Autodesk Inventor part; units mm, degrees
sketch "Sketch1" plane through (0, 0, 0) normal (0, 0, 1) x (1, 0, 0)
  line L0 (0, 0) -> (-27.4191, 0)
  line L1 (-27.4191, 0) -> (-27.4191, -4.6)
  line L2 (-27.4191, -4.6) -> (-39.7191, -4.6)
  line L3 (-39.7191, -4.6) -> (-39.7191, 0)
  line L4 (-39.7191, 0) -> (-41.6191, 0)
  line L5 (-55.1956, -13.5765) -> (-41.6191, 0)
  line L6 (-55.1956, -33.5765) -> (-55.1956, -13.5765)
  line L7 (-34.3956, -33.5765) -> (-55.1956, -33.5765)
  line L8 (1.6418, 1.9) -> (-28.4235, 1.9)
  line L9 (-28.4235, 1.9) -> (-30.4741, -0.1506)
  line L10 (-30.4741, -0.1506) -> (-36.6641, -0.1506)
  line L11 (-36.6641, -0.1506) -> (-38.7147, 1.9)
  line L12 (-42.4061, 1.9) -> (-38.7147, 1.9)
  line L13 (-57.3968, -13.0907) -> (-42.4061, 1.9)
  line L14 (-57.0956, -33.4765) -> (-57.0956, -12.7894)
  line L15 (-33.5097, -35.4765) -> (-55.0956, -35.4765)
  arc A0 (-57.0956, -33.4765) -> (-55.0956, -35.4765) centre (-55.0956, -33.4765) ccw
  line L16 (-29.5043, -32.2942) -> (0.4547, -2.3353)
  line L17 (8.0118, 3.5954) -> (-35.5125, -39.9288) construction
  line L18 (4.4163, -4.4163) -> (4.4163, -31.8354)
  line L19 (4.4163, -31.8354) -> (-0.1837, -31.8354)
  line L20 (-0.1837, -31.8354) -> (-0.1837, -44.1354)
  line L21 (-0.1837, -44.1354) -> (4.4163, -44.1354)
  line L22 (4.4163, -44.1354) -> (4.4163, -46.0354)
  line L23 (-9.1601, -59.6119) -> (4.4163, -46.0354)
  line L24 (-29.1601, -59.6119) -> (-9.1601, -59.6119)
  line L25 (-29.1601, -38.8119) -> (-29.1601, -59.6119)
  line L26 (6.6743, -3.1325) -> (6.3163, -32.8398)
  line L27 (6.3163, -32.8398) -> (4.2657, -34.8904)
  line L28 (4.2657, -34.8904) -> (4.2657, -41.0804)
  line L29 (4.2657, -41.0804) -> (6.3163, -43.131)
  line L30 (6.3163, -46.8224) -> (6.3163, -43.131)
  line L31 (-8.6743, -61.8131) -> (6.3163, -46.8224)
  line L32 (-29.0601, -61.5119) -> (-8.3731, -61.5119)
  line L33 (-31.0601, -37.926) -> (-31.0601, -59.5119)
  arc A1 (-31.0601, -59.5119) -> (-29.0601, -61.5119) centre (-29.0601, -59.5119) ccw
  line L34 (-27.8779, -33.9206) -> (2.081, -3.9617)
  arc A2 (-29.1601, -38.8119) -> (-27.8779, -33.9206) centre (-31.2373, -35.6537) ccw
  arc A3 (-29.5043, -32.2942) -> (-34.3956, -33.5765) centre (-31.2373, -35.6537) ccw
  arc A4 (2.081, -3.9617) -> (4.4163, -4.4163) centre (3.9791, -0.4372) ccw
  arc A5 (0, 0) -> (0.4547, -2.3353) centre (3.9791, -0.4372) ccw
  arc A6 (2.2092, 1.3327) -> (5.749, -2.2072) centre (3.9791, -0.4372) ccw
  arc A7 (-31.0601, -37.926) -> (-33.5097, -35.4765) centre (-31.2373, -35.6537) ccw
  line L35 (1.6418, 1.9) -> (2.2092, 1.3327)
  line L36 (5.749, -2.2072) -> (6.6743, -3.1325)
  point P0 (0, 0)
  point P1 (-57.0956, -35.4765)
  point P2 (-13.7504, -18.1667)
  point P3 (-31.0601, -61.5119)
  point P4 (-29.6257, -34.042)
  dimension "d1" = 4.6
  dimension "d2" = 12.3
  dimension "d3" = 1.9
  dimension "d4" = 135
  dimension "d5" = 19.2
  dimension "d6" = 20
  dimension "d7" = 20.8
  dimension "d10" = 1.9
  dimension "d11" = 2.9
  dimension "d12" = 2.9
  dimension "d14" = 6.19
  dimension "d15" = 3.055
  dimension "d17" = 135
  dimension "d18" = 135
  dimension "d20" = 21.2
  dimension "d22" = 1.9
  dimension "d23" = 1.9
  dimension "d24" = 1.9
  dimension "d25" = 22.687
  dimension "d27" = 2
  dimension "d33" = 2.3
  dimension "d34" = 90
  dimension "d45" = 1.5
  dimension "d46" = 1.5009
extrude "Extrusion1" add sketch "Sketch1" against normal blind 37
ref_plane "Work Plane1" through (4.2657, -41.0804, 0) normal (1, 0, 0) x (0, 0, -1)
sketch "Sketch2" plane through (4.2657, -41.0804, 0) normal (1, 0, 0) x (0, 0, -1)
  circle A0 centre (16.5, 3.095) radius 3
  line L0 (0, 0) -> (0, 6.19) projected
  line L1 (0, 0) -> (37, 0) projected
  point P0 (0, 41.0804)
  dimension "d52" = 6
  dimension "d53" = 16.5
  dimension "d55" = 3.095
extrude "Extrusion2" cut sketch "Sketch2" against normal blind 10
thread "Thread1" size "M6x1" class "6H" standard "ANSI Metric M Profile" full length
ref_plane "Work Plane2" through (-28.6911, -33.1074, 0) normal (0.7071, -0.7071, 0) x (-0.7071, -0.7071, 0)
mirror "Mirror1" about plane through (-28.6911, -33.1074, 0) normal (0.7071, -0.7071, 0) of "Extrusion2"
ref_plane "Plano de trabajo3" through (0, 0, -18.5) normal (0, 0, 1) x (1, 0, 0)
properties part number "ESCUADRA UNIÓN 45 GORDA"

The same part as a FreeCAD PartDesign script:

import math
import FreeCAD as App
import Part
import Sketcher
from FreeCAD import Vector
Q = App.Units.Quantity

doc = App.newDocument("Part")
params = doc.addObject("Spreadsheet::Sheet", "Params")
for row, (alias, value) in enumerate([
    ("sketch1_radius", "2 mm"),
    ("sketch1_width", "20 mm"),
    ("sketch1_width2", "4.6 mm"),
    ("sketch1_width3", "20.8 mm"),
    ("sketch1_width4", "1.9 mm"),
    ("pad1_length", "37 mm"),
    ("sketch2_diameter", "6 mm"),
    ("pocket1_length", "10 mm"),
], start=1):
    params.set(f"A{row}", alias)
    params.set(f"B{row}", "=" + value)
    params.setAlias(f"B{row}", alias)

body = doc.addObject("PartDesign::Body", "Body")

# Sketch on XY plane
sketch1 = body.newObject("Sketcher::SketchObject", "Sketch")
sketch1.AttachmentSupport = (doc.getObject("XY_Plane"), [""])
sketch1.MapMode = "FlatFace"
sketch1.addGeometry([
    Part.LineSegment(Vector(2.2, 1.3, 0), Vector(1.6, 1.9, 0)),  # 0
    Part.LineSegment(Vector(1.6, 1.9, 0), Vector(-28.4, 1.9, 0)),  # 1
    Part.LineSegment(Vector(-28.4, 1.9, 0), Vector(-30.5, -0.2, 0)),  # 2
    Part.LineSegment(Vector(-30.5, -0.2, 0), Vector(-36.7, -0.2, 0)),  # 3
    Part.LineSegment(Vector(-36.7, -0.2, 0), Vector(-38.7, 1.9, 0)),  # 4
    Part.LineSegment(Vector(-38.7, 1.9, 0), Vector(-42.4, 1.9, 0)),  # 5
    Part.LineSegment(Vector(-42.4, 1.9, 0), Vector(-57.1, -12.8, 0)),  # 6
    Part.LineSegment(Vector(-57.1, -12.8, 0), Vector(-57.1, -33.5, 0)),  # 7
    Part.ArcOfCircle(Part.Circle(Vector(-55.1, -33.5, 0), Vector(0, 0, 1), 2), math.radians(180), math.radians(270)),  # 8
    Part.LineSegment(Vector(-55.1, -35.5, 0), Vector(-33.5, -35.5, 0)),  # 9
    Part.ArcOfCircle(Part.Circle(Vector(-31.2, -35.7, 0), Vector(0, 0, 1), 2.3), math.radians(-86), math.radians(176)),  # 10
    Part.LineSegment(Vector(-31.1, -37.9, 0), Vector(-31.1, -59.5, 0)),  # 11
    Part.ArcOfCircle(Part.Circle(Vector(-29.1, -59.5, 0), Vector(0, 0, 1), 2), math.radians(180), math.radians(270)),  # 12
    Part.LineSegment(Vector(-29.1, -61.5, 0), Vector(-8.4, -61.5, 0)),  # 13
    Part.LineSegment(Vector(-8.4, -61.5, 0), Vector(6.3, -46.8, 0)),  # 14
    Part.LineSegment(Vector(6.3, -46.8, 0), Vector(6.3, -43.1, 0)),  # 15
    Part.LineSegment(Vector(6.3, -43.1, 0), Vector(4.3, -41.1, 0)),  # 16
    Part.LineSegment(Vector(4.3, -41.1, 0), Vector(4.3, -34.9, 0)),  # 17
    Part.LineSegment(Vector(4.3, -34.9, 0), Vector(6.3, -32.8, 0)),  # 18
    Part.LineSegment(Vector(6.3, -32.8, 0), Vector(6.7, -3.1, 0)),  # 19
    Part.LineSegment(Vector(6.7, -3.1, 0), Vector(5.7, -2.2, 0)),  # 20
    Part.ArcOfCircle(Part.Circle(Vector(4, -0.4, 0), Vector(0, 0, 1), 2.5), math.radians(135), math.radians(315)),  # 21
    Part.ArcOfCircle(Part.Circle(Vector(4, -0.4, 0), Vector(0, 0, 1), 4), math.radians(-118), math.radians(-84)),  # 22
    Part.LineSegment(Vector(4.4, -4.4, 0), Vector(4.4, -31.8, 0)),  # 23
    Part.LineSegment(Vector(4.4, -31.8, 0), Vector(-0.2, -31.8, 0)),  # 24
    Part.LineSegment(Vector(-0.2, -31.8, 0), Vector(-0.2, -44.1, 0)),  # 25
    Part.LineSegment(Vector(-0.2, -44.1, 0), Vector(4.4, -44.1, 0)),  # 26
    Part.LineSegment(Vector(4.4, -44.1, 0), Vector(4.4, -46, 0)),  # 27
    Part.LineSegment(Vector(4.4, -46, 0), Vector(-9.2, -59.6, 0)),  # 28
    Part.LineSegment(Vector(-9.2, -59.6, 0), Vector(-29.2, -59.6, 0)),  # 29
    Part.LineSegment(Vector(-29.2, -59.6, 0), Vector(-29.2, -38.8, 0)),  # 30
    Part.ArcOfCircle(Part.Circle(Vector(-31.2, -35.7, 0), Vector(0, 0, 1), 3.8), math.radians(-57), math.radians(27)),  # 31
    Part.LineSegment(Vector(-27.9, -33.9, 0), Vector(2.1, -4, 0)),  # 32
    Part.LineSegment(Vector(-27.4, 0, 0), Vector(0, 0, 0)),  # 33
    Part.ArcOfCircle(Part.Circle(Vector(4, -0.4, 0), Vector(0, 0, 1), 4), math.radians(174), math.radians(208)),  # 34
    Part.LineSegment(Vector(0.5, -2.3, 0), Vector(-29.5, -32.3, 0)),  # 35
    Part.ArcOfCircle(Part.Circle(Vector(-31.2, -35.7, 0), Vector(0, 0, 1), 3.8), math.radians(63), math.radians(147)),  # 36
    Part.LineSegment(Vector(-34.4, -33.6, 0), Vector(-55.2, -33.6, 0)),  # 37
    Part.LineSegment(Vector(-55.2, -33.6, 0), Vector(-55.2, -13.6, 0)),  # 38
    Part.LineSegment(Vector(-55.2, -13.6, 0), Vector(-41.6, 0, 0)),  # 39
    Part.LineSegment(Vector(-41.6, 0, 0), Vector(-39.7, 0, 0)),  # 40
    Part.LineSegment(Vector(-39.7, 0, 0), Vector(-39.7, -4.6, 0)),  # 41
    Part.LineSegment(Vector(-39.7, -4.6, 0), Vector(-27.4, -4.6, 0)),  # 42
    Part.LineSegment(Vector(-27.4, -4.6, 0), Vector(-27.4, 0, 0)),  # 43
], False)
sketch1.addConstraint([
    Sketcher.Constraint("Coincident", 0, 2, 1, 1),
    Sketcher.Constraint("Coincident", 1, 2, 2, 1),
    Sketcher.Constraint("Coincident", 2, 2, 3, 1),
    Sketcher.Constraint("Coincident", 3, 2, 4, 1),
    Sketcher.Constraint("Coincident", 4, 2, 5, 1),
    Sketcher.Constraint("Coincident", 5, 2, 6, 1),
    Sketcher.Constraint("Coincident", 6, 2, 7, 1),
    Sketcher.Constraint("Tangent", 7, 2, 8, 1),
    Sketcher.Constraint("Tangent", 8, 2, 9, 1),
    Sketcher.Constraint("Coincident", 9, 2, 10, 2),
    Sketcher.Constraint("Coincident", 10, 1, 11, 1),
    Sketcher.Constraint("Tangent", 11, 2, 12, 1),
    Sketcher.Constraint("Tangent", 12, 2, 13, 1),
    Sketcher.Constraint("Coincident", 13, 2, 14, 1),
    Sketcher.Constraint("Coincident", 14, 2, 15, 1),
    Sketcher.Constraint("Coincident", 15, 2, 16, 1),
    Sketcher.Constraint("Coincident", 16, 2, 17, 1),
    Sketcher.Constraint("Coincident", 17, 2, 18, 1),
    Sketcher.Constraint("Coincident", 18, 2, 19, 1),
    Sketcher.Constraint("Coincident", 19, 2, 20, 1),
    Sketcher.Constraint("Coincident", 20, 2, 21, 2),
    Sketcher.Constraint("Coincident", 21, 1, 0, 1),
    Sketcher.Constraint("Coincident", 22, 2, 23, 1),
    Sketcher.Constraint("Coincident", 23, 2, 24, 1),
    Sketcher.Constraint("Coincident", 24, 2, 25, 1),
    Sketcher.Constraint("Coincident", 25, 2, 26, 1),
    Sketcher.Constraint("Coincident", 26, 2, 27, 1),
    Sketcher.Constraint("Coincident", 27, 2, 28, 1),
    Sketcher.Constraint("Coincident", 28, 2, 29, 1),
    Sketcher.Constraint("Coincident", 29, 2, 30, 1),
    Sketcher.Constraint("Coincident", 30, 2, 31, 1),
    Sketcher.Constraint("Coincident", 31, 2, 32, 1),
    Sketcher.Constraint("Coincident", 32, 2, 22, 1),
    Sketcher.Constraint("Coincident", 33, 2, 34, 1),
    Sketcher.Constraint("Coincident", 34, 2, 35, 1),
    Sketcher.Constraint("Coincident", 35, 2, 36, 1),
    Sketcher.Constraint("Coincident", 36, 2, 37, 1),
    Sketcher.Constraint("Coincident", 37, 2, 38, 1),
    Sketcher.Constraint("Coincident", 38, 2, 39, 1),
    Sketcher.Constraint("Coincident", 39, 2, 40, 1),
    Sketcher.Constraint("Coincident", 40, 2, 41, 1),
    Sketcher.Constraint("Coincident", 41, 2, 42, 1),
    Sketcher.Constraint("Coincident", 42, 2, 43, 1),
    Sketcher.Constraint("Coincident", 43, 2, 33, 1),
    Sketcher.Constraint("Horizontal", 1),
    Sketcher.Constraint("Horizontal", 3),
    Sketcher.Constraint("Horizontal", 5),
    Sketcher.Constraint("Vertical", 7),
    Sketcher.Constraint("Horizontal", 9),
    Sketcher.Constraint("Vertical", 11),
    Sketcher.Constraint("Horizontal", 13),
    Sketcher.Constraint("Vertical", 15),
    Sketcher.Constraint("Vertical", 17),
    Sketcher.Constraint("Vertical", 23),
    Sketcher.Constraint("Horizontal", 24),
    Sketcher.Constraint("Vertical", 25),
    Sketcher.Constraint("Horizontal", 26),
    Sketcher.Constraint("Vertical", 27),
    Sketcher.Constraint("Horizontal", 29),
    Sketcher.Constraint("Vertical", 30),
    Sketcher.Constraint("Horizontal", 33),
    Sketcher.Constraint("Horizontal", 37),
    Sketcher.Constraint("Vertical", 38),
    Sketcher.Constraint("Horizontal", 40),
    Sketcher.Constraint("Vertical", 41),
    Sketcher.Constraint("Horizontal", 42),
    Sketcher.Constraint("Vertical", 43),
    Sketcher.Constraint("Coincident", 33, 2, -1, 1),
    Sketcher.Constraint("Coincident", 22, 3, 21, 3),
    Sketcher.Constraint("Coincident", 31, 3, 10, 3),
    Sketcher.Constraint("Coincident", 34, 3, 21, 3),
    Sketcher.Constraint("Coincident", 36, 3, 10, 3),
    Sketcher.Constraint("Equal", 8, 12),
    Sketcher.Constraint("Equal", 22, 34),
    Sketcher.Constraint("Equal", 31, 36),
    Sketcher.Constraint("PointOnObject", 39, 2, -1),
    Sketcher.Constraint("Perpendicular", 0, 2),
    Sketcher.Constraint("Perpendicular", 2, 4),
    Sketcher.Constraint("Perpendicular", 4, 6),
    Sketcher.Constraint("Parallel", 6, 14),
    Sketcher.Constraint("Perpendicular", 14, 16),
    Sketcher.Constraint("Perpendicular", 16, 18),
    Sketcher.Constraint("Perpendicular", 18, 20),
    Sketcher.Constraint("Perpendicular", 20, 28),
    Sketcher.Constraint("Parallel", 28, 32),
    Sketcher.Constraint("Parallel", 32, 35),
    Sketcher.Constraint("Parallel", 35, 39),
    Sketcher.Constraint("Horizontal", 1, 2, 4, 2),
    Sketcher.Constraint("Vertical", 15, 2, 18, 2),
    Sketcher.Constraint("Vertical", 23, 2, 26, 2),
    Sketcher.Constraint("Equal", 13, 7),
    Sketcher.Constraint("Equal", 9, 11),
    Sketcher.Constraint("Equal", 5, 15),
    Sketcher.Constraint("Equal", 3, 17),
    Sketcher.Constraint("Equal", 33, 23),
    Sketcher.Constraint("Equal", 42, 25),
    Sketcher.Constraint("Equal", 40, 27),
    Sketcher.Constraint("Equal", 37, 30),
    Sketcher.Constraint("Equal", 29, 38),
    Sketcher.Constraint("Equal", 26, 41),
    Sketcher.Constraint("Equal", 2, 4),
    Sketcher.Constraint("Equal", 6, 14),
    Sketcher.Constraint("Equal", 4, 16),
    Sketcher.Constraint("Equal", 32, 35),
    Sketcher.Constraint("Equal", 28, 39),
    Sketcher.Constraint("Radius", 8, Q("2 mm")),
    Sketcher.Constraint("DistanceX", 29, 2, 29, 1, Q("20 mm")),
    Sketcher.Constraint("DistanceX", 24, 2, 24, 1, Q("4.6 mm")),
    Sketcher.Constraint("DistanceX", 37, 2, 37, 1, Q("20.8 mm")),
    Sketcher.Constraint("DistanceX", 40, 1, 40, 2, Q("1.9 mm")),
    Sketcher.Constraint("DistanceX", 42, 1, 42, 2, Q("12.3 mm")),
    Sketcher.Constraint("Distance", 2, Q("2.9 mm")),
    Sketcher.Constraint("Distance", 28, Q("19.2 mm")),
    Sketcher.Constraint("DistanceX", 3, 2, 3, 1, Q("6.19 mm")),
    Sketcher.Constraint("DistanceY", -1, 1, 0, 2, Q("1.9 mm")),
    Sketcher.Constraint("DistanceX", 23, 2, 18, 2, Q("1.9 mm")),
    Sketcher.Constraint("DistanceY", 13, 2, 28, 2, Q("1.9 mm")),
    Sketcher.Constraint("DistanceX", 11, 2, 29, 2, Q("1.9 mm")),
    Sketcher.Constraint("DistanceX", 7, 2, 37, 2, Q("1.9 mm")),
    Sketcher.Constraint("Radius", 21, Q("2.503 mm")),
    Sketcher.Constraint("Radius", 22, Q("4.003 mm")),
    Sketcher.Constraint("DistanceY", 8, 2, 6, 2, Q("22.687 mm")),
    Sketcher.Constraint("DistanceY", 17, 2, 23, 2, Q("3.055 mm")),
    Sketcher.Constraint("Angle", 19, Q("89.3096 deg")),
    Sketcher.Constraint("Radius", 10, Q("2.2792 mm")),
    Sketcher.Constraint("Radius", 31, Q("3.7801 mm")),
    Sketcher.Constraint("DistanceX", 9, 1, 9, 2, Q("21.586 mm")),
    Sketcher.Constraint("DistanceX", 33, 1, 33, 2, Q("27.419 mm")),
    Sketcher.Constraint("DistanceX", 21, 3, 20, 2, Q("1.77 mm")),
    Sketcher.Constraint("DistanceX", 21, 1, 21, 3, Q("1.77 mm")),
    Sketcher.Constraint("DistanceX", -1, 1, 32, 2, Q("2.081 mm")),
])
sketch1.setExpression("Constraints[105]", "Params.sketch1_radius")
sketch1.setExpression("Constraints[106]", "Params.sketch1_width")
sketch1.setExpression("Constraints[107]", "Params.sketch1_width2")
sketch1.setExpression("Constraints[108]", "Params.sketch1_width3")
sketch1.setExpression("Constraints[109]", "Params.sketch1_width4")
pad1 = body.newObject("PartDesign::Pad", "Pad")
pad1.Profile = sketch1
pad1.setExpression("Length", "Params.pad1_length")
pad1.Reversed = True

# Sketch on YZ plane
sketch2 = body.newObject("Sketcher::SketchObject", "Sketch001")
sketch2.AttachmentSupport = (doc.getObject("YZ_Plane"), [""])
sketch2.MapMode = "FlatFace"
sketch2.AttachmentOffset = App.Placement(Vector(0, 0, 4.2657), App.Rotation())
sketch2.addGeometry(Part.Circle(Vector(-38, -16.5, 0), Vector(0, 0, 1), 3), False)
sketch2.addConstraint([
    Sketcher.Constraint("Diameter", 0, Q("6 mm")),
    Sketcher.Constraint("DistanceY", 0, 3, -1, 1, Q("16.5 mm")),
    Sketcher.Constraint("DistanceX", 0, 3, -1, 1, Q("37.9854 mm")),
])
sketch2.setExpression("Constraints[0]", "Params.sketch2_diameter")
pocket1 = body.newObject("PartDesign::Pocket", "Pocket")
pocket1.Profile = sketch2
pocket1.setExpression("Length", "Params.pocket1_length")
doc.recompute()

datumplane = body.newObject("PartDesign::Plane", "DatumPlane")
datumplane.Placement = App.Placement(Vector(2.20815, -2.20815, 0), App.Rotation(Vector(0.707106781, 0.707106781, 0), Vector(0, 0, -1), Vector(-0.707106781, 0.707106781, 0), "ZXY"))
mirrored = body.newObject("PartDesign::Mirrored", "Mirrored")
mirrored.Originals = [pocket1]
mirrored.MirrorPlane = (datumplane, [""])
body.Tip = mirrored

doc.recompute()
